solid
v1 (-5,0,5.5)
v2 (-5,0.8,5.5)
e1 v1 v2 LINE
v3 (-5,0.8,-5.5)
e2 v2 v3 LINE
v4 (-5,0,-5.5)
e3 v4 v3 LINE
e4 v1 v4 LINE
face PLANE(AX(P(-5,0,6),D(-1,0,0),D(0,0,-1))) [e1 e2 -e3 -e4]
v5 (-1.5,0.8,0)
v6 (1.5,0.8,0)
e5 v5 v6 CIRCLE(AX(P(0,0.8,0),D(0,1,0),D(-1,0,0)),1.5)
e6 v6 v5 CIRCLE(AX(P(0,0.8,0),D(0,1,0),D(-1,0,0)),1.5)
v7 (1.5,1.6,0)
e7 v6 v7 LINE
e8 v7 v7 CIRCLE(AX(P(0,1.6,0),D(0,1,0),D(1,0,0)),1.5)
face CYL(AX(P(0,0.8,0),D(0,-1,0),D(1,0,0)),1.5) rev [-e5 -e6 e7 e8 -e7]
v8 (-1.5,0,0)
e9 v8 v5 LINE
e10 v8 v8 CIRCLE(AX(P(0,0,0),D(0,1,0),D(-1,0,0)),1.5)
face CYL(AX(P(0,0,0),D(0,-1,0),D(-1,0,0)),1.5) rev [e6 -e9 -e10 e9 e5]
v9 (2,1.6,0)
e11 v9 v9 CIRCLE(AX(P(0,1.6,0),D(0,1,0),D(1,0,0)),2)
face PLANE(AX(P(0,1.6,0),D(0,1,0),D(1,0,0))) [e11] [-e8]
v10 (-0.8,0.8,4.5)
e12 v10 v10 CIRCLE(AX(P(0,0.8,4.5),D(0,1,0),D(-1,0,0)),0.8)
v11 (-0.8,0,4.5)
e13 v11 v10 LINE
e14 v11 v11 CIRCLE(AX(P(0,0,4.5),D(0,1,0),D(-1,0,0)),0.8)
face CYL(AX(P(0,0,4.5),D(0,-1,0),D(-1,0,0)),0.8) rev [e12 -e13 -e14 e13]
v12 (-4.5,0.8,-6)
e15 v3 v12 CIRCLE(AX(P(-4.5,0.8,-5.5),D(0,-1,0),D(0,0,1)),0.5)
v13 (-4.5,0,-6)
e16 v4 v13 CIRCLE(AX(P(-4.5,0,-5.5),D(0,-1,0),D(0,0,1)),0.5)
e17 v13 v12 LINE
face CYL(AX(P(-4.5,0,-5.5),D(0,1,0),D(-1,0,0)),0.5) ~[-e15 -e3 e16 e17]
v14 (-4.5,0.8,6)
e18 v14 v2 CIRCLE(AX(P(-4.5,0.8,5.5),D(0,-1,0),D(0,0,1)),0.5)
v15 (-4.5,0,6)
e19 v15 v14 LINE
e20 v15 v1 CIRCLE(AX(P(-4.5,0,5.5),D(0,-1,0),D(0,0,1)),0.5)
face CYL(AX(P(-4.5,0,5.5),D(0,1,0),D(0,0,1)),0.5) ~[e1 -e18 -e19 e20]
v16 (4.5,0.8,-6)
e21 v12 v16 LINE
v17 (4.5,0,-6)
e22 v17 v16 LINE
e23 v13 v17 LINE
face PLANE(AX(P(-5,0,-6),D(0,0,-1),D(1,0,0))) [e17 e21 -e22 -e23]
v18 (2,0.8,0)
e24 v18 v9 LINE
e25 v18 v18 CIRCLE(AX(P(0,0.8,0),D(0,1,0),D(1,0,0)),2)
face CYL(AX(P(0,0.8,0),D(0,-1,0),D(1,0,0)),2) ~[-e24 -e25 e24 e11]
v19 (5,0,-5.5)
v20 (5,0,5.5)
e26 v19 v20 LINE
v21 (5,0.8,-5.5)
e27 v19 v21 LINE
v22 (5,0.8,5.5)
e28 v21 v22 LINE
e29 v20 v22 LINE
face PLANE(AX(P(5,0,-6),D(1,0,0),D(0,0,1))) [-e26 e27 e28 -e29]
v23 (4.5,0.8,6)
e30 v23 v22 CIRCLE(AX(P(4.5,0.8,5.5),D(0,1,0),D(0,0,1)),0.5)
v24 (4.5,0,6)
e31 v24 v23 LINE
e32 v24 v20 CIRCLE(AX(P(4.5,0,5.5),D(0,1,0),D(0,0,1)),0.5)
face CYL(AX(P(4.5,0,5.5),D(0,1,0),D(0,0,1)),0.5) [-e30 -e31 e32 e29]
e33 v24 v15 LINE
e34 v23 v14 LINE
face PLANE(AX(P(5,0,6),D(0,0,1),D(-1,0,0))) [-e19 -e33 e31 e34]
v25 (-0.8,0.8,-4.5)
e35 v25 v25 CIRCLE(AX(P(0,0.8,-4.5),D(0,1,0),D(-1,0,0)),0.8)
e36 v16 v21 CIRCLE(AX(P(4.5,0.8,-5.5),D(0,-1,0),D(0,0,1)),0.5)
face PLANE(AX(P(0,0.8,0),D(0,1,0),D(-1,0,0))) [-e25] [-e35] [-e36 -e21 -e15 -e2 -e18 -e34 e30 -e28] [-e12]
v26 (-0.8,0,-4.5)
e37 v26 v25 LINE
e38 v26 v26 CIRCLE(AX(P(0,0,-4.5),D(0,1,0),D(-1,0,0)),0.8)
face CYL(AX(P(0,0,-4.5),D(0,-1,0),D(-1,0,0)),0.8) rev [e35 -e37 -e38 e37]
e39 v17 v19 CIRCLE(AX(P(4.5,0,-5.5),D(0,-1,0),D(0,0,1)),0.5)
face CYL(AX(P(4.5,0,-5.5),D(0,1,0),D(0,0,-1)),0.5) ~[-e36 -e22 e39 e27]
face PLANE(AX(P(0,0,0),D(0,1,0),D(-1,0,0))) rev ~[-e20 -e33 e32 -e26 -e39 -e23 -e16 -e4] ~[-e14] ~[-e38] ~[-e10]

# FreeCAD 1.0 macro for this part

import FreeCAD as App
import Part
import Sketcher
from FreeCAD import Vector
Q = App.Units.Quantity


def edges_at(feature, points):
    """Names of the edges that pass closest to the given points."""
    edges = feature.Shape.Edges
    near = lambda p: min(range(len(edges)), key=lambda i: edges[i].distToShape(Part.Vertex(*p))[0])
    return sorted({f"Edge{near(p) + 1}" for p in points})

doc = App.newDocument("Part")
body = doc.addObject("PartDesign::Body", "Body")

# Sketch on XZ plane
sketch1 = body.newObject("Sketcher::SketchObject", "Sketch")
sketch1.AttachmentSupport = (doc.getObject("XZ_Plane"), [""])
sketch1.MapMode = "FlatFace"
sketch1.addGeometry(Part.LineSegment(Vector(-5, 6, 0), Vector(5, 6, 0)), False)
sketch1.addGeometry(Part.LineSegment(Vector(5, 6, 0), Vector(5, -6, 0)), False)
sketch1.addGeometry(Part.LineSegment(Vector(5, -6, 0), Vector(-5, -6, 0)), False)
sketch1.addGeometry(Part.LineSegment(Vector(-5, -6, 0), Vector(-5, 6, 0)), False)
sketch1.addGeometry(Part.Circle(Vector(0, -4.5, 0), Vector(0, 0, 1), 0.8), False)
sketch1.addGeometry(Part.Circle(Vector(0, 0, 0), Vector(0, 0, 1), 1.5), False)
sketch1.addGeometry(Part.Circle(Vector(0, 4.5, 0), Vector(0, 0, 1), 0.8), False)
sketch1.addConstraint(Sketcher.Constraint("Coincident", 0, 2, 1, 1))
sketch1.addConstraint(Sketcher.Constraint("Coincident", 1, 2, 2, 1))
sketch1.addConstraint(Sketcher.Constraint("Coincident", 2, 2, 3, 1))
sketch1.addConstraint(Sketcher.Constraint("Coincident", 3, 2, 0, 1))
sketch1.addConstraint(Sketcher.Constraint("Horizontal", 0))
sketch1.addConstraint(Sketcher.Constraint("Vertical", 1))
sketch1.addConstraint(Sketcher.Constraint("Horizontal", 2))
sketch1.addConstraint(Sketcher.Constraint("Vertical", 3))
sketch1.addConstraint(Sketcher.Constraint("Coincident", 5, 3, -1, 1))
sketch1.addConstraint(Sketcher.Constraint("Equal", 4, 6))
sketch1.addConstraint(Sketcher.Constraint("Symmetric", 4, 3, 6, 3, -1, 1))
sketch1.addConstraint(Sketcher.Constraint("Symmetric", 0, 2, 2, 2, -1, 1))
sketch1.addConstraint(Sketcher.Constraint("PointOnObject", 4, 3, -2))
sketch1.addConstraint(Sketcher.Constraint("Diameter", 5, Q("3 mm")))
sketch1.addConstraint(Sketcher.Constraint("Diameter", 4, Q("1.6 mm")))
sketch1.addConstraint(Sketcher.Constraint("DistanceX", 0, 1, 0, 2, Q("10 mm")))
sketch1.addConstraint(Sketcher.Constraint("DistanceY", 1, 2, 1, 1, Q("12 mm")))
sketch1.addConstraint(Sketcher.Constraint("DistanceY", 4, 3, 6, 3, Q("9 mm")))
pad1 = body.newObject("PartDesign::Pad", "Pad")
pad1.Profile = sketch1
pad1.Length = 0.8
pad1.Reversed = True
doc.recompute()

fillet = body.newObject("PartDesign::Fillet", "Fillet")
fillet.Base = (pad1, edges_at(pad1, [
    (-5, 0.4, 6),
    (5, 0.4, 6),
    (5, 0.4, -6),
    (-5, 0.4, -6),
]))
fillet.Radius = 0.5

# Sketch on XZ plane
sketch2 = body.newObject("Sketcher::SketchObject", "Sketch001")
sketch2.AttachmentSupport = (doc.getObject("XZ_Plane"), [""])
sketch2.MapMode = "FlatFace"
sketch2.AttachmentOffset = App.Placement(Vector(0, 0, -0.8), App.Rotation())
sketch2.addGeometry(Part.Circle(Vector(0, 0, 0), Vector(0, 0, 1), 2), False)
sketch2.addGeometry(Part.Circle(Vector(0, 0, 0), Vector(0, 0, 1), 1.5), False)
sketch2.addConstraint(Sketcher.Constraint("Coincident", 0, 3, -1, 1))
sketch2.addConstraint(Sketcher.Constraint("Coincident", 1, 3, -1, 1))
sketch2.addConstraint(Sketcher.Constraint("Diameter", 0, Q("4 mm")))
sketch2.addConstraint(Sketcher.Constraint("Diameter", 1, Q("3 mm")))
pad2 = body.newObject("PartDesign::Pad", "Pad001")
pad2.Profile = sketch2
pad2.Length = 0.8
pad2.Reversed = True

doc.recompute()
